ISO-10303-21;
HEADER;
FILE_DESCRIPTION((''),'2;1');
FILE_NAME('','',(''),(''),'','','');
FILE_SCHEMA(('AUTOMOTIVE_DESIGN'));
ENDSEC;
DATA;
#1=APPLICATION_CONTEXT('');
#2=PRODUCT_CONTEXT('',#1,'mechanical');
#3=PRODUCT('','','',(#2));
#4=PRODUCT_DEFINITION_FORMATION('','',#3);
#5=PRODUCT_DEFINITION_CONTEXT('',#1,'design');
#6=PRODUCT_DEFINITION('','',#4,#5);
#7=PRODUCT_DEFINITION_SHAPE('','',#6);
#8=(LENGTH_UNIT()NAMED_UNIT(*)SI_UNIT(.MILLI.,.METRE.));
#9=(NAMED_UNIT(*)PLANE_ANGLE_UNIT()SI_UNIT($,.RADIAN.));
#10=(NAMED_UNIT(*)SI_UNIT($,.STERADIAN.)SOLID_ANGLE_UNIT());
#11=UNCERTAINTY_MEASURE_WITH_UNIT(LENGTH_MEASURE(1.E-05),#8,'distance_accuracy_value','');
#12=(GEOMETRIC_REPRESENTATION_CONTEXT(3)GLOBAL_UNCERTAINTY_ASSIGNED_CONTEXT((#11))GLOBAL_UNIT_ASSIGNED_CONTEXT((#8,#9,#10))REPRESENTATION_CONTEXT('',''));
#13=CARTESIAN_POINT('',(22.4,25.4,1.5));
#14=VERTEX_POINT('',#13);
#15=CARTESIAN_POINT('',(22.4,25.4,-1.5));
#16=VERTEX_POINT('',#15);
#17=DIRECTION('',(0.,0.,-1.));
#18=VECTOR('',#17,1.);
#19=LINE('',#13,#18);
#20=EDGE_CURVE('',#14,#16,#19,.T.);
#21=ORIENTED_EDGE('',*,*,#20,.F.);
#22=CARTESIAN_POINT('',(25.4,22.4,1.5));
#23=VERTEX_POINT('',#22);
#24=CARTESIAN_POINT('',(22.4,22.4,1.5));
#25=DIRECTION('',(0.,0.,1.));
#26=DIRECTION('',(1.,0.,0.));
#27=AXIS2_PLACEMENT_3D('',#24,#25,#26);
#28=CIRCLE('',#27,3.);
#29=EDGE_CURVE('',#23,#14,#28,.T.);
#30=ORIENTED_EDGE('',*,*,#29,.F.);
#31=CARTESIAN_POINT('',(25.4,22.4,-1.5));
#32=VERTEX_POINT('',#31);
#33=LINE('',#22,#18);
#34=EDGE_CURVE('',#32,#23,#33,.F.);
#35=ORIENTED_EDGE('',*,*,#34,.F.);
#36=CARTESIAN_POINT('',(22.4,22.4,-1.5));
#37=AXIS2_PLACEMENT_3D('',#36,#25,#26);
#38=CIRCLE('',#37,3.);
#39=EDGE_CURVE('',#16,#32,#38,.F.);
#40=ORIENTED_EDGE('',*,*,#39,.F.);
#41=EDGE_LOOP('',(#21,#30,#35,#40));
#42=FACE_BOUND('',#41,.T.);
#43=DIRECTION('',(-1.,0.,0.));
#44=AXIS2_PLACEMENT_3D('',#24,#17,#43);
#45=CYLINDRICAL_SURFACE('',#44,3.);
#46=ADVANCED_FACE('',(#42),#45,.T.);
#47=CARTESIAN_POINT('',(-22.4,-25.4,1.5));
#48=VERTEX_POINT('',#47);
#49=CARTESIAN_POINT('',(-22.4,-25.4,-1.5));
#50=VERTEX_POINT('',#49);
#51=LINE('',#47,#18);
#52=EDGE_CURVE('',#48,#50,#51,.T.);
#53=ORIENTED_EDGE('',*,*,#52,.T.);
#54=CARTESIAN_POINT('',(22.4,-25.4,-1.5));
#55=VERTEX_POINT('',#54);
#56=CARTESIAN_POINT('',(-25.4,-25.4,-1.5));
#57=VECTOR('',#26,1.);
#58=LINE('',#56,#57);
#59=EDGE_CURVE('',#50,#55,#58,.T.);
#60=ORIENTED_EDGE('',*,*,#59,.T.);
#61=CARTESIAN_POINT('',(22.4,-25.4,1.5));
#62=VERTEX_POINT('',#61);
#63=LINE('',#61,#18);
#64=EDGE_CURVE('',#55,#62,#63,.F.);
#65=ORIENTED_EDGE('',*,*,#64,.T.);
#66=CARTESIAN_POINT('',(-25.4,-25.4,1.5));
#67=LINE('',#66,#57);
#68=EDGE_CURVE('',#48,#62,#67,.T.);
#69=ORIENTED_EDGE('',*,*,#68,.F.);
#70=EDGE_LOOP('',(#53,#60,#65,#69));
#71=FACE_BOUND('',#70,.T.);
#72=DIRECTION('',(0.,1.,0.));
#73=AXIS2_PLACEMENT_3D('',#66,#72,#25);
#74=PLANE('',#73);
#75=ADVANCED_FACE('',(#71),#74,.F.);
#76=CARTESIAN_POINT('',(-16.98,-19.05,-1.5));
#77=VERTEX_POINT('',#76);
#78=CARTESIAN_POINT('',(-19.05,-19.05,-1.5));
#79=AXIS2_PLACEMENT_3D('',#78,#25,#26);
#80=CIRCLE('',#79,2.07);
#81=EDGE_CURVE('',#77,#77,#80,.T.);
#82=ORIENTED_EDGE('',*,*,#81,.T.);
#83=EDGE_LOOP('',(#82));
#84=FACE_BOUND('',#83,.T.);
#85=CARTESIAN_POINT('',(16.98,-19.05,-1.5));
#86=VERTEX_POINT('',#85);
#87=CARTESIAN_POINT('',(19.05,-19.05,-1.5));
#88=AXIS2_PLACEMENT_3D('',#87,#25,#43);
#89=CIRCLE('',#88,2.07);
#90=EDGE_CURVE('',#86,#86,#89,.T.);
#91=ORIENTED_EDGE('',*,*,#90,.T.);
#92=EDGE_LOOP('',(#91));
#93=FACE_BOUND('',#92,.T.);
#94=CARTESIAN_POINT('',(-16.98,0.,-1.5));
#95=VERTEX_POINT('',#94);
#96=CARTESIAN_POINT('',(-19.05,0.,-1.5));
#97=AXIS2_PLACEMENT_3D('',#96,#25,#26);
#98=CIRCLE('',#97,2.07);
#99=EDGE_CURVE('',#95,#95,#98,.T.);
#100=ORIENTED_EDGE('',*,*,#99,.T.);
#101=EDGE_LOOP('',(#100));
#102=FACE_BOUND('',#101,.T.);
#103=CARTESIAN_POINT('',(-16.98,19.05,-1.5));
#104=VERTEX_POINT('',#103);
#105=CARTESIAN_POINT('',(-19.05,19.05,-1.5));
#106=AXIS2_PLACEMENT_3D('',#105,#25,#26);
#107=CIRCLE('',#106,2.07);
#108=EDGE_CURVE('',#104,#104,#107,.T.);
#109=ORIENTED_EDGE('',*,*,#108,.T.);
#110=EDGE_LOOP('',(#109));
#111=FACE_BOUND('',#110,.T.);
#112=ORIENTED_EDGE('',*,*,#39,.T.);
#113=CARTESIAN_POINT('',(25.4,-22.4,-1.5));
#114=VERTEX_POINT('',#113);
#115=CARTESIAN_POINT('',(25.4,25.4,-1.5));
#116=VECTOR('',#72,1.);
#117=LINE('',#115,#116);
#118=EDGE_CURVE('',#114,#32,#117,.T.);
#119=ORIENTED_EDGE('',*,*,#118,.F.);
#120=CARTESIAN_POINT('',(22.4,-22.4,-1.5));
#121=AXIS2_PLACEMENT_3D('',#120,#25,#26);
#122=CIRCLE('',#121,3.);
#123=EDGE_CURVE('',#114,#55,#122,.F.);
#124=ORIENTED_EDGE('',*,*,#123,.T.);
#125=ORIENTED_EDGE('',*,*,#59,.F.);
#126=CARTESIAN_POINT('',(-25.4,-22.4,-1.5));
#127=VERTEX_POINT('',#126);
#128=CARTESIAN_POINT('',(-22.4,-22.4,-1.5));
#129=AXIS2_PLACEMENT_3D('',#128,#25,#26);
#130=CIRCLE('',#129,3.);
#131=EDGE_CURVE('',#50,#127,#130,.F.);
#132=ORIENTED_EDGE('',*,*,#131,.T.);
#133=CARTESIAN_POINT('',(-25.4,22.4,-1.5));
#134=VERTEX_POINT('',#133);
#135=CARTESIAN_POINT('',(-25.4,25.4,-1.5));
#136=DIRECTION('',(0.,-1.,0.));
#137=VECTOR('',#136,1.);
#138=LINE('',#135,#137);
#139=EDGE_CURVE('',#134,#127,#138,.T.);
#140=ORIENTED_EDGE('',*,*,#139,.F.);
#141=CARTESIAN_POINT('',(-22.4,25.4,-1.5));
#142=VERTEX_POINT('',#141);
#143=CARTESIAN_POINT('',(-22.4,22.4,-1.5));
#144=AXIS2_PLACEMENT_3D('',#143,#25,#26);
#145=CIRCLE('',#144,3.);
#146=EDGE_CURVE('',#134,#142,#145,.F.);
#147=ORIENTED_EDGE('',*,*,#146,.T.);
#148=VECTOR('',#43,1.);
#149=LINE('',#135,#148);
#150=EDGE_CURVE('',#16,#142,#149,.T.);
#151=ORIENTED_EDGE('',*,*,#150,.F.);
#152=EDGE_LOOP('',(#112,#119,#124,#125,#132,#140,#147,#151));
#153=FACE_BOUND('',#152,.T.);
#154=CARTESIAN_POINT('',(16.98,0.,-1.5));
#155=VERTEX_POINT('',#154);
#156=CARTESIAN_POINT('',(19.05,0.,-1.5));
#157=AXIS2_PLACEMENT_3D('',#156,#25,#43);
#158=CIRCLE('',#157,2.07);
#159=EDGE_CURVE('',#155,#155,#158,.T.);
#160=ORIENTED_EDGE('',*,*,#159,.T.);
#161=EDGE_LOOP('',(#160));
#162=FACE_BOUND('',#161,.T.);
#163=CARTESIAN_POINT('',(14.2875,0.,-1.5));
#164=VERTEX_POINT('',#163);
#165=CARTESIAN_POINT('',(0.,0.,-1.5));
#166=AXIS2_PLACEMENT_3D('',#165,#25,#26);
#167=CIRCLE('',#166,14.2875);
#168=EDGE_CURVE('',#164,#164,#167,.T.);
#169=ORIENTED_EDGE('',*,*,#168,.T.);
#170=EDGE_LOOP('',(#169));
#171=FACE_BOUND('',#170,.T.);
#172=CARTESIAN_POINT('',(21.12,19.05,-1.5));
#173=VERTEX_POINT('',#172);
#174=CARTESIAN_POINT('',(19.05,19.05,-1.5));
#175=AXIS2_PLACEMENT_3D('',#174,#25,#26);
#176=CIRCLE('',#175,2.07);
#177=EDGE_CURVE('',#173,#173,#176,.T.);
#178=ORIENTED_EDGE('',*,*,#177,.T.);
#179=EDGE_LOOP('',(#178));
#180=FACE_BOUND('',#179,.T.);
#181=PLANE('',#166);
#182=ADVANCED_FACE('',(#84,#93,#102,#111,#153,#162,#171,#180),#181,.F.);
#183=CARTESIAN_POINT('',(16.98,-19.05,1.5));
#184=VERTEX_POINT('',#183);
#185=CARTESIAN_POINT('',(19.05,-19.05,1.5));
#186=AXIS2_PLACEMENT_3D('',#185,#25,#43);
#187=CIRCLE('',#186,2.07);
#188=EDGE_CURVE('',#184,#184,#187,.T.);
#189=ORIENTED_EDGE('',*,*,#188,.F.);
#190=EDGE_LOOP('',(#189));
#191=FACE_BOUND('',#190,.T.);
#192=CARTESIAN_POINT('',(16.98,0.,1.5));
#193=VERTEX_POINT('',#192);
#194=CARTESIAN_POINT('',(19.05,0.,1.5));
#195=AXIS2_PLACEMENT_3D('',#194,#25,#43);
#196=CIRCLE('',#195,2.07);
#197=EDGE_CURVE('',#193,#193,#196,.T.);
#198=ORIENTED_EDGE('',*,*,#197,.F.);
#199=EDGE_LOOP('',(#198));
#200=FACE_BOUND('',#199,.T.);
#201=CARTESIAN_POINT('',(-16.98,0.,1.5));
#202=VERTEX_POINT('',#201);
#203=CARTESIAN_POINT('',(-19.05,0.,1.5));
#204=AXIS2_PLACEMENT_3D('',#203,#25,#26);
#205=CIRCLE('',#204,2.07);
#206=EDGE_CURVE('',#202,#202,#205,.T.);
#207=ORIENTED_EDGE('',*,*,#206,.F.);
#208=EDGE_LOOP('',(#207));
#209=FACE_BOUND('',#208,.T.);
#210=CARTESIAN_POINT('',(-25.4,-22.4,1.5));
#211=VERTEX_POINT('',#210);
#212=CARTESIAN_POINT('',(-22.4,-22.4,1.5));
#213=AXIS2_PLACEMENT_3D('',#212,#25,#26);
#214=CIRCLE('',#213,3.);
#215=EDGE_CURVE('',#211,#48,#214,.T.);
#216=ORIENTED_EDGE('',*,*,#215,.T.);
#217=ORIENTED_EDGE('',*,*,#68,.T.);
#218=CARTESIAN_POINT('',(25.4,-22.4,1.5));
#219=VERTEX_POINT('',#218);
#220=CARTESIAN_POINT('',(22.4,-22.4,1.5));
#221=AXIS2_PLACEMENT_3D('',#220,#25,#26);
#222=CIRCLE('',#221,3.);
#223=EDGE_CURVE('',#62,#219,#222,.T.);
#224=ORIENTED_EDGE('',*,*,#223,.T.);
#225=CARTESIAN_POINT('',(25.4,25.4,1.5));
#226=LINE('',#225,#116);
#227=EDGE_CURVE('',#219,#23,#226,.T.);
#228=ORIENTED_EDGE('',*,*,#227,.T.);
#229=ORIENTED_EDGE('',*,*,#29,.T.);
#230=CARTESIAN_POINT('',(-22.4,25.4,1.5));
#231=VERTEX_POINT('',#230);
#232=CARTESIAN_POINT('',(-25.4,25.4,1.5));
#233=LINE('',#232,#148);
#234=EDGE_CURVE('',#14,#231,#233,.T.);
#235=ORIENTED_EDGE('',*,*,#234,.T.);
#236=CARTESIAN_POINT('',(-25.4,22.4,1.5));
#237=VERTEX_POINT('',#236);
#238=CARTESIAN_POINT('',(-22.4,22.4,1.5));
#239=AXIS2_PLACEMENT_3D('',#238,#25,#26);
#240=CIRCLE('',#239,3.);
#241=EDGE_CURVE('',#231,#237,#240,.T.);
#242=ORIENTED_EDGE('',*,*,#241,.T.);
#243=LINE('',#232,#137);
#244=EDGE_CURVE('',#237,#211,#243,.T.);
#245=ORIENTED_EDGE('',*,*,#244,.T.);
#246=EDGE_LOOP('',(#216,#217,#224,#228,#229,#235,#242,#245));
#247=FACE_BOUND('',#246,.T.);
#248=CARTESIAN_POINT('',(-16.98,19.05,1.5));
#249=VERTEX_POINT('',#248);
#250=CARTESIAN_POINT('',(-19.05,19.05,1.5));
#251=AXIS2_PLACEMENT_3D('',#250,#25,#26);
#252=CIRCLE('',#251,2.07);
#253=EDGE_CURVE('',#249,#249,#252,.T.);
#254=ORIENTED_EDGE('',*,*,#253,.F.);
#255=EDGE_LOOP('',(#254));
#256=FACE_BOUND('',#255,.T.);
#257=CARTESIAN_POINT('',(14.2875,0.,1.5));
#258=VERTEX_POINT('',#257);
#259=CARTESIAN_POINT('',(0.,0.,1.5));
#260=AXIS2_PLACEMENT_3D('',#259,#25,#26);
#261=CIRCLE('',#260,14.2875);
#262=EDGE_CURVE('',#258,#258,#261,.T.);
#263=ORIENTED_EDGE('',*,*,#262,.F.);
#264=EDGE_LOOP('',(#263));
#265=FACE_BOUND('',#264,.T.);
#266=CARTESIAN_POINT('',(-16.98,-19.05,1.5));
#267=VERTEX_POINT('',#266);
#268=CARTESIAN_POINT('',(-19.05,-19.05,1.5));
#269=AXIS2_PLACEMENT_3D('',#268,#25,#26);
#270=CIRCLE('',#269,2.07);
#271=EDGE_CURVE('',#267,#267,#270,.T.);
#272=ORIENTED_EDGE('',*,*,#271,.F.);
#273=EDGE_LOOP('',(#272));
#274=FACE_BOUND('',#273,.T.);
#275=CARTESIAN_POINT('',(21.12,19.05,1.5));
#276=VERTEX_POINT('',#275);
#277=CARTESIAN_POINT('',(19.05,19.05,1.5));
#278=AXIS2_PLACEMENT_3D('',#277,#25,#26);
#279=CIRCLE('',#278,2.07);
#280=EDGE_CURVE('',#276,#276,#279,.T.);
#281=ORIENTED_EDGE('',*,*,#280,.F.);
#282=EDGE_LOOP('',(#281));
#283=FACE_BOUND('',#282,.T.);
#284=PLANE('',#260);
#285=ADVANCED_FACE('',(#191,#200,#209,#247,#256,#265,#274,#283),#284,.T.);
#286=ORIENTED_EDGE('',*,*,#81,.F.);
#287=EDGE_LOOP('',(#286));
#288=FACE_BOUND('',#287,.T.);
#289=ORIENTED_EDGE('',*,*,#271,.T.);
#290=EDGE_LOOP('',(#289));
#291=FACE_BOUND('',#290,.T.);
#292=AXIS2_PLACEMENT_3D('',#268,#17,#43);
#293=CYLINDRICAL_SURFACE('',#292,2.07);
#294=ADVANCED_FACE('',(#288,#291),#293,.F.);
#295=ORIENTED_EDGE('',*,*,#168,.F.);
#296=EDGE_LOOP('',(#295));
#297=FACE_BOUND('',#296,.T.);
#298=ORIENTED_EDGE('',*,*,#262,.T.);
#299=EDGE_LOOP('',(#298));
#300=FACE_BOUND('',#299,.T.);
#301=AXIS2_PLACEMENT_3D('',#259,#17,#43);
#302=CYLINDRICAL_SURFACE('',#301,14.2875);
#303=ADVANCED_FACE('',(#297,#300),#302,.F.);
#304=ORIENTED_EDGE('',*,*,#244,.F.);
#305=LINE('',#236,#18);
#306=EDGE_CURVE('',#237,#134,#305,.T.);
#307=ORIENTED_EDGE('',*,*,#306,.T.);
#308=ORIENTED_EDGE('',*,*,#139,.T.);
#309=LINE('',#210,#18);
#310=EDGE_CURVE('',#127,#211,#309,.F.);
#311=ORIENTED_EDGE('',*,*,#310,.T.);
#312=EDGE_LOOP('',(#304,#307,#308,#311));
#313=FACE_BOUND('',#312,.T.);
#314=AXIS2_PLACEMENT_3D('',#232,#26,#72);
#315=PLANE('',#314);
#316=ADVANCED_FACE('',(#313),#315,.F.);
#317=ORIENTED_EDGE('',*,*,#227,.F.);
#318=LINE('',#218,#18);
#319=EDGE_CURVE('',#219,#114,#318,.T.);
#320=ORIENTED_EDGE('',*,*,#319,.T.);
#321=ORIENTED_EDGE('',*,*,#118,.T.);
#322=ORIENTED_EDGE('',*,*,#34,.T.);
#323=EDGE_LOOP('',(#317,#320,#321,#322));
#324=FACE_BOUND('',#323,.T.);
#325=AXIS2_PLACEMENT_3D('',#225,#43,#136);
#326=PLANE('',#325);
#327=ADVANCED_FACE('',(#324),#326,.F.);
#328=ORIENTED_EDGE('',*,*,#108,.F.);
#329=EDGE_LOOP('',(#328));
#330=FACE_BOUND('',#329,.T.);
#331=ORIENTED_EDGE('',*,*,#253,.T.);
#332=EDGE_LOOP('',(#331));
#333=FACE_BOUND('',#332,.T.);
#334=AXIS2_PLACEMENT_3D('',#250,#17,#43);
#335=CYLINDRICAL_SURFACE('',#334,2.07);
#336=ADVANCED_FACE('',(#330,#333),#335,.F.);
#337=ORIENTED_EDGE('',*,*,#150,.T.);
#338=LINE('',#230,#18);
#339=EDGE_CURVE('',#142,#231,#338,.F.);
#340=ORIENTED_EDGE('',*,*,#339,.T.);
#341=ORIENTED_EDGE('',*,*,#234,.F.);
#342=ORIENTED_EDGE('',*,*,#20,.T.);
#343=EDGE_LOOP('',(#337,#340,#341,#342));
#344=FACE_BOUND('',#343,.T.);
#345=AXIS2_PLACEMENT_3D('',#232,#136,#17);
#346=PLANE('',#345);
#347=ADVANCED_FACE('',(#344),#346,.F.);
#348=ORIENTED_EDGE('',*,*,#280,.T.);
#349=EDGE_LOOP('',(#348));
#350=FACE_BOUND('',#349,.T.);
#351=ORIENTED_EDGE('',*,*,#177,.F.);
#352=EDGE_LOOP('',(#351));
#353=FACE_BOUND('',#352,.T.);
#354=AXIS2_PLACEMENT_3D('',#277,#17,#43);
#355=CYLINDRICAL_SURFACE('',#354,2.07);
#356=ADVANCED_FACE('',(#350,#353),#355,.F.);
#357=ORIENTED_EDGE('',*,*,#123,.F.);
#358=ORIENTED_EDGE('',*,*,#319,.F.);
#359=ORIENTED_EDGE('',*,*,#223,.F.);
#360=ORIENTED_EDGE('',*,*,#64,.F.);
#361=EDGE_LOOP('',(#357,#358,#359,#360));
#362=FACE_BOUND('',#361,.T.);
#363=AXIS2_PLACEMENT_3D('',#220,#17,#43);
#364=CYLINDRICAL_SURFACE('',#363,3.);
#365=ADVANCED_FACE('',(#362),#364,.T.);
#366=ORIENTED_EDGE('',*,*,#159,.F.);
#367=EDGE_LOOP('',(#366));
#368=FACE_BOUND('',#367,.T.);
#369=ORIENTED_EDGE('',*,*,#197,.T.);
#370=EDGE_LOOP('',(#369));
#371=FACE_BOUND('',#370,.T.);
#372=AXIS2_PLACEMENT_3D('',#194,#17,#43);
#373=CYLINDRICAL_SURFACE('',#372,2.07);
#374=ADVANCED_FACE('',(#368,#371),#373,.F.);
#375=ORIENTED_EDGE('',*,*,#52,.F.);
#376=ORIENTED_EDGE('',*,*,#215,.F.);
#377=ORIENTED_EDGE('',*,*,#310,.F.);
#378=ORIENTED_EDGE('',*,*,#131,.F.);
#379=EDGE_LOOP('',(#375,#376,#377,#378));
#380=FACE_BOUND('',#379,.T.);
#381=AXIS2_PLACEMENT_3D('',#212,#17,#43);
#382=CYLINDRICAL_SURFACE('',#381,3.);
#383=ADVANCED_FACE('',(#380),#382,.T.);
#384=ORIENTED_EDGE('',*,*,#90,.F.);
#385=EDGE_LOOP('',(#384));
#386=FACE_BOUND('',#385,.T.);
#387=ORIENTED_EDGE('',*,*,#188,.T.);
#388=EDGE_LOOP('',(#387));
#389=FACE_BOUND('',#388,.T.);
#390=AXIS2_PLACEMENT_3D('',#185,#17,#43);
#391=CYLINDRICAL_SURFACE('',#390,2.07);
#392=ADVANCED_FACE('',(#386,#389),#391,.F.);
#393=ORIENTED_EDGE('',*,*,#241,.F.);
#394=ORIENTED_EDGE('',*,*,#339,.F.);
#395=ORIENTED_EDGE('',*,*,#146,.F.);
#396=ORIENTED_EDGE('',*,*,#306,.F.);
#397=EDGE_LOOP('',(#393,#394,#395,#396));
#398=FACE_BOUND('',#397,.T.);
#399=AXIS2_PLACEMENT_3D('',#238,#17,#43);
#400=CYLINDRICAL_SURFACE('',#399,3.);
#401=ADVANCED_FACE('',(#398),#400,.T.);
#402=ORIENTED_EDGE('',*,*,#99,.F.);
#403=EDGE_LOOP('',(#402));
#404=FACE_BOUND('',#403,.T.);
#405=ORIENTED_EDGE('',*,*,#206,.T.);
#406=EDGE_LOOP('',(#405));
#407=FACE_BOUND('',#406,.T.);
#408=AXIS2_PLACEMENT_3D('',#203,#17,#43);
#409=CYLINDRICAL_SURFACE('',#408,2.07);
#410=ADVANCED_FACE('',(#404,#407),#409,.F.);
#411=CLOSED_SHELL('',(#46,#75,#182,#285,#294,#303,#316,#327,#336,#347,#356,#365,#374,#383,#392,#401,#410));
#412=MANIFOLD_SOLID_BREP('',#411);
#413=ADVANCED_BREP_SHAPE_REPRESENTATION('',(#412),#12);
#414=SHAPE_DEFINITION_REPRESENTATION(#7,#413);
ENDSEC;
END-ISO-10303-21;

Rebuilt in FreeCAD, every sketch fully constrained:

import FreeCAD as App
import Part
import Sketcher
from FreeCAD import Vector


def edges_at(feature, points):
    """Names of the edges that pass closest to the given points."""
    edges = feature.Shape.Edges
    near = lambda p: min(range(len(edges)), key=lambda i: edges[i].distToShape(Part.Vertex(*p))[0])
    return sorted({f"Edge{near(p) + 1}" for p in points})


def add_polygon(sketch, points):
    """Adds a closed chain of lines whose ends are joined by coincident constraints."""
    first, n = sketch.GeometryCount, len(points)
    for a, b in zip(points, points[1:] + points[:1]):
        sketch.addGeometry(Part.LineSegment(App.Vector(*a, 0), App.Vector(*b, 0)), False)
    for i in range(n):
        sketch.addConstraint(Sketcher.Constraint("Coincident", first + i, 2, first + (i + 1) % n, 1))

doc = App.newDocument("Part")
params = doc.addObject("Spreadsheet::Sheet", "Params")
for row, (alias, value) in enumerate([
    ("sketch1_diameter", "4.14 mm"),
    ("sketch1_width", "50.8 mm"),
    ("pad1_length", "3 mm"),
    ("fillet_radius", "3 mm"),
], start=1):
    params.set(f"A{row}", alias)
    params.set(f"B{row}", "=" + value)
    params.setAlias(f"B{row}", alias)

body = doc.addObject("PartDesign::Body", "Body")

# Sketch on XY plane
sketch1 = doc.addObject("Sketcher::SketchObject", "Sketch")
body.addObject(sketch1)
sketch1.AttachmentSupport = (doc.XY_Plane, [""])
sketch1.MapMode = "FlatFace"
add_polygon(sketch1, [(-25.4, 25.4), (-25.4, -25.4), (25.4, -25.4), (25.4, 25.4)])  # lines 0-3
sketch1.addGeometry(Part.Circle(Vector(-19.1, -19.1, 0), Vector(0, 0, 1), 2.1), False)  # 4
sketch1.addGeometry(Part.Circle(Vector(19.1, -19.1, 0), Vector(0, 0, 1), 2.1), False)  # 5
sketch1.addGeometry(Part.Circle(Vector(-19.1, 0, 0), Vector(0, 0, 1), 2.1), False)  # 6
sketch1.addGeometry(Part.Circle(Vector(-19.1, 19.1, 0), Vector(0, 0, 1), 2.1), False)  # 7
sketch1.addGeometry(Part.Circle(Vector(0, 0, 0), Vector(0, 0, 1), 14.3), False)  # 8
sketch1.addGeometry(Part.Circle(Vector(19.1, 0, 0), Vector(0, 0, 1), 2.1), False)  # 9
sketch1.addGeometry(Part.Circle(Vector(19.1, 19.1, 0), Vector(0, 0, 1), 2.1), False)  # 10
sketch1.addConstraint([
    Sketcher.Constraint("Vertical", 0),
    Sketcher.Constraint("Horizontal", 1),
    Sketcher.Constraint("Vertical", 2),
    Sketcher.Constraint("Horizontal", 3),
    Sketcher.Constraint("Coincident", 8, 3, -1, 1),
    Sketcher.Constraint("Equal", 4, 5),
    Sketcher.Constraint("Equal", 5, 6),
    Sketcher.Constraint("Equal", 6, 7),
    Sketcher.Constraint("Equal", 7, 9),
    Sketcher.Constraint("Equal", 9, 10),
    Sketcher.Constraint("Symmetric", 5, 3, 7, 3, -1, 1),
    Sketcher.Constraint("Symmetric", 6, 3, 9, 3, -1, 1),
    Sketcher.Constraint("Symmetric", 4, 3, 10, 3, -1, 1),
    Sketcher.Constraint("Symmetric", 0, 2, 2, 2, -1, 1),
    Sketcher.Constraint("Symmetric", 4, 3, 5, 3, -2),
    Sketcher.Constraint("PointOnObject", 6, 3, -1),
    Sketcher.Constraint("Vertical", 4, 3, 6, 3),
    Sketcher.Constraint("Equal", 3, 0),
    Sketcher.Constraint("Diameter", 4, 4.14),
    Sketcher.Constraint("Diameter", 8, 28.575),
    Sketcher.Constraint("DistanceX", 1, 1, 1, 2, 50.8),
    Sketcher.Constraint("DistanceX", 4, 3, 5, 3, 38.1),
    Sketcher.Constraint("DistanceY", 4, 3, 7, 3, 38.1),
])
sketch1.setExpression("Constraints[22]", "Params.sketch1_diameter")
sketch1.setExpression("Constraints[24]", "Params.sketch1_width")
pad1 = doc.addObject("PartDesign::Pad", "Pad")
body.addObject(pad1)
pad1.Profile = sketch1
pad1.setExpression("Length", "Params.pad1_length")
pad1.Midplane = True
doc.recompute()

fillet = doc.addObject("PartDesign::Fillet", "Fillet")
body.addObject(fillet)
fillet.Base = (pad1, edges_at(pad1, [
    (25.4, -25.4, 0),
    (-25.4, -25.4, 0),
    (-25.4, 25.4, 0),
    (25.4, 25.4, 0),
]))
fillet.setExpression("Radius", "Params.fillet_radius")

doc.recompute()
